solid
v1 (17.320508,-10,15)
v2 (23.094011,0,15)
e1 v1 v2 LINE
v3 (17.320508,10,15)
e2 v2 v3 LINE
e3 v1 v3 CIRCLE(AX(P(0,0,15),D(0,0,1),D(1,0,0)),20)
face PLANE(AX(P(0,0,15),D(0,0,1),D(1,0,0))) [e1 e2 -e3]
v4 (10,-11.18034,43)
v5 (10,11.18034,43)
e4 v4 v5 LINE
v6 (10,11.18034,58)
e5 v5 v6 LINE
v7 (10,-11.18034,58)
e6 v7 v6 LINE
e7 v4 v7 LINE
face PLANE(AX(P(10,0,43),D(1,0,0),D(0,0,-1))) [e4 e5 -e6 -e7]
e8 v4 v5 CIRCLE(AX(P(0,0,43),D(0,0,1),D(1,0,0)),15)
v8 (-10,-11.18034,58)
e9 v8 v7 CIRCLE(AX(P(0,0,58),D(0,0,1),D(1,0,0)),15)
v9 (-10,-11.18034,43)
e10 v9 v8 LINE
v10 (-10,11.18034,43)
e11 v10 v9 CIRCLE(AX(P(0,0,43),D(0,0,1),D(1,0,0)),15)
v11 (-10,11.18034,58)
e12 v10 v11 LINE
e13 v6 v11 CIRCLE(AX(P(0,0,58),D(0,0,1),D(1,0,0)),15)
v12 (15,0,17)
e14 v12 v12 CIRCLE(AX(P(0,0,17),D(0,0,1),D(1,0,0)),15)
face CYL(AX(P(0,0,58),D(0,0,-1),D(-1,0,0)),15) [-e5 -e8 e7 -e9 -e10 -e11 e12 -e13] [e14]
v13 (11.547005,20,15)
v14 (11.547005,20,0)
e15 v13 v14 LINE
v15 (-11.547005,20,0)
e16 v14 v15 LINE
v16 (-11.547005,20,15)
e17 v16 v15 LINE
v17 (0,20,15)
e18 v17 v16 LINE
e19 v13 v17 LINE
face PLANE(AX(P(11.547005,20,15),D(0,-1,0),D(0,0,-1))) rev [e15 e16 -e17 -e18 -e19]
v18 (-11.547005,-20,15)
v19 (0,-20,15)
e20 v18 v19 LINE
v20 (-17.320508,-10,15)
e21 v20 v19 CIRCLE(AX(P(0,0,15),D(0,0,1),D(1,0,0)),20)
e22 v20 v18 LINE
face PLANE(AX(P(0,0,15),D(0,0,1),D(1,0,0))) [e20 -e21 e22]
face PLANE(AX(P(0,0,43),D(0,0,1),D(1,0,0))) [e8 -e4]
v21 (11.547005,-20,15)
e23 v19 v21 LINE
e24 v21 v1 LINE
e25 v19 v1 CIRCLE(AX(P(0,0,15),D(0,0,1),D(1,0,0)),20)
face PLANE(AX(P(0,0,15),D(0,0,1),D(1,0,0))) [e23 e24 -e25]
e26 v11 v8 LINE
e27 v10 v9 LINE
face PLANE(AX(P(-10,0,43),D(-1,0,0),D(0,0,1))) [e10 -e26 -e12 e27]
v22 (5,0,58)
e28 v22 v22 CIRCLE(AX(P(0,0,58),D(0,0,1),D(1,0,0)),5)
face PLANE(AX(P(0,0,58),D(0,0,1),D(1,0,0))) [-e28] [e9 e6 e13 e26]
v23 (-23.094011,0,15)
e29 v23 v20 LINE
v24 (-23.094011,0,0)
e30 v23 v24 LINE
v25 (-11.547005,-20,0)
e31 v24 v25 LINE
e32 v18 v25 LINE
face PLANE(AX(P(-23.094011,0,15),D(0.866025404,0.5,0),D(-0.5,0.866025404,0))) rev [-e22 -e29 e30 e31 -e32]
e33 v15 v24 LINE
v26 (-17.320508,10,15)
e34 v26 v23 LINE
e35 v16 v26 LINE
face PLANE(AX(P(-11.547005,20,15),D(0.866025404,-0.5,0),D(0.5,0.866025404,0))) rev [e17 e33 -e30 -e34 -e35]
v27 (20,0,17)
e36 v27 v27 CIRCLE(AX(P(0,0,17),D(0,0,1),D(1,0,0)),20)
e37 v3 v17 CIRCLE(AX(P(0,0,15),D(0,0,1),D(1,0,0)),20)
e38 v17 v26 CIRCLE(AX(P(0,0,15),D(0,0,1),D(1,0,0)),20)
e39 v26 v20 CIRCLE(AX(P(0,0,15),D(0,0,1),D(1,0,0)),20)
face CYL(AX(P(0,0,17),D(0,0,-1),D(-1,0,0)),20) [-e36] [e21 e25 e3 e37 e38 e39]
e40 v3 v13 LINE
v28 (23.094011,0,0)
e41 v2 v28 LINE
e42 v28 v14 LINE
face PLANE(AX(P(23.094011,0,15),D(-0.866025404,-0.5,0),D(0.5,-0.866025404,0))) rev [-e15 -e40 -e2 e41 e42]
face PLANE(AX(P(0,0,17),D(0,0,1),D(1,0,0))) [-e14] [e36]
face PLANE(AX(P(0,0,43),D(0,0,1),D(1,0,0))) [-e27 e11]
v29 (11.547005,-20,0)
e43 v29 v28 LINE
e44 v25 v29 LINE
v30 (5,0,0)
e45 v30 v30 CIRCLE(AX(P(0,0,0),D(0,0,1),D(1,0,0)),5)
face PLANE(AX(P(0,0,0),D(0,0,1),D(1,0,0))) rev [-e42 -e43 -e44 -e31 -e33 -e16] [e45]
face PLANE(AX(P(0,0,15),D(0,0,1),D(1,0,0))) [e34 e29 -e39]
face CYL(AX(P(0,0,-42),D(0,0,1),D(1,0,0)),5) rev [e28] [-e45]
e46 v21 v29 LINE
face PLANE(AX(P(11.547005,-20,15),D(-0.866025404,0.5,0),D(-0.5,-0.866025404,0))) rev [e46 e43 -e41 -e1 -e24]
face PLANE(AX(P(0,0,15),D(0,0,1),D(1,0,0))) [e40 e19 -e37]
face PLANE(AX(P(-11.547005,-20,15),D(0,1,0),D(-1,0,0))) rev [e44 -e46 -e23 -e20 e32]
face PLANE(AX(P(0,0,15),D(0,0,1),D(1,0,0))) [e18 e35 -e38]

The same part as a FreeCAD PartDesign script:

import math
import FreeCAD as App
import Part
import Sketcher

V = App.Vector
Q = App.Units.Quantity


def add_polygon(sketch, points):
    """Adds a closed chain of lines whose ends are joined by coincident constraints."""
    first, n = sketch.GeometryCount, len(points)
    for a, b in zip(points, points[1:] + points[:1]):
        sketch.addGeometry(Part.LineSegment(App.Vector(*a, 0), App.Vector(*b, 0)), False)
    for i in range(n):
        sketch.addConstraint(Sketcher.Constraint("Coincident", first + i, 2, first + (i + 1) % n, 1))

doc = App.newDocument("Part")
body = doc.addObject("PartDesign::Body", "Body")

sketch1 = body.newObject("Sketcher::SketchObject", "Sketch")
sketch1.AttachmentSupport = (doc.getObject("XY_Plane"), [""])
sketch1.MapMode = "FlatFace"
add_polygon(sketch1, [(23.094011, 0), (11.547005, 20), (-11.547005, 20), (-23.094011, 0), (-11.547005, -20), (11.547005, -20)])
sketch1.addConstraint(Sketcher.Constraint("Horizontal", 1))
sketch1.addConstraint(Sketcher.Constraint("Horizontal", 4))
sketch1.addConstraint(Sketcher.Constraint("Symmetric", 0, 2, 3, 2, -1, 1))
sketch1.addConstraint(Sketcher.Constraint("Symmetric", 2, 2, 5, 2, -1, 1))
sketch1.addConstraint(Sketcher.Constraint("PointOnObject", 2, 2, -1))
sketch1.addConstraint(Sketcher.Constraint("Parallel", 2, 5))
sketch1.addConstraint(Sketcher.Constraint("Vertical", 1, 2, 3, 2))
sketch1.addConstraint(Sketcher.Constraint("Angle", 0, Q("120 deg")))
sketch1.addConstraint(Sketcher.Constraint("DistanceY", -1, 1, 0, 2, 20.0))
sketch1.addConstraint(Sketcher.Constraint("DistanceX", 1, 2, 1, 1, 23.094011))
pad1 = body.newObject("PartDesign::Pad", "Pad")
pad1.Profile = sketch1
pad1.Length = 15

sketch2 = body.newObject("Sketcher::SketchObject", "Sketch001")
sketch2.AttachmentSupport = (doc.getObject("XY_Plane"), [""])
sketch2.MapMode = "FlatFace"
sketch2.AttachmentOffset = App.Placement(V(0, 0, 15), App.Rotation())
sketch2.addGeometry(Part.Circle(V(0, 0, 0), V(0, 0, 1), 20), False)
sketch2.addConstraint(Sketcher.Constraint("Coincident", 0, 3, -1, 1))
sketch2.addConstraint(Sketcher.Constraint("Diameter", 0, 40.0))
pad2 = body.newObject("PartDesign::Pad", "Pad001")
pad2.Profile = sketch2
pad2.Length = 2

sketch3 = body.newObject("Sketcher::SketchObject", "Sketch002")
sketch3.AttachmentSupport = (doc.getObject("XY_Plane"), [""])
sketch3.MapMode = "FlatFace"
sketch3.AttachmentOffset = App.Placement(V(0, 0, 17), App.Rotation())
sketch3.addGeometry(Part.Circle(V(0, 0, 0), V(0, 0, 1), 15), False)
sketch3.addConstraint(Sketcher.Constraint("Coincident", 0, 3, -1, 1))
sketch3.addConstraint(Sketcher.Constraint("Diameter", 0, 30.0))
pad3 = body.newObject("PartDesign::Pad", "Pad002")
pad3.Profile = sketch3
pad3.Length = 41

sketch4 = body.newObject("Sketcher::SketchObject", "Sketch003")
sketch4.AttachmentSupport = (doc.getObject("XY_Plane"), [""])
sketch4.MapMode = "FlatFace"
sketch4.AttachmentOffset = App.Placement(V(0, 0, 58), App.Rotation())
sketch4.addGeometry(Part.Circle(V(0, 0, 0), V(0, 0, 1), 5), False)
sketch4.addConstraint(Sketcher.Constraint("Coincident", 0, 3, -1, 1))
sketch4.addConstraint(Sketcher.Constraint("Diameter", 0, 10.0))
pocket1 = body.newObject("PartDesign::Pocket", "Pocket")
pocket1.Profile = sketch4
pocket1.Length = 100

sketch5 = body.newObject("Sketcher::SketchObject", "Sketch004")
sketch5.AttachmentSupport = (doc.getObject("XY_Plane"), [""])
sketch5.MapMode = "FlatFace"
sketch5.AttachmentOffset = App.Placement(V(0, 0, 43), App.Rotation())
sketch5.addGeometry(Part.LineSegment(V(-10, -11.18034, 0), V(-10, 11.18034, 0)), False)
sketch5.addGeometry(Part.ArcOfCircle(Part.Circle(V(0, 0, 0), V(0, 0, 1), 15), math.radians(131.810315), math.radians(228.189685)), False)
sketch5.addGeometry(Part.LineSegment(V(10, 11.18034, 0), V(10, -11.18034, 0)), False)
sketch5.addGeometry(Part.ArcOfCircle(Part.Circle(V(0, 0, 0), V(0, 0, 1), 15), math.radians(-48.189685), math.radians(0)), False)
sketch5.addGeometry(Part.ArcOfCircle(Part.Circle(V(0, 0, 0), V(0, 0, 1), 15), math.radians(0), math.radians(48.189685)), False)
sketch5.addConstraint(Sketcher.Constraint("Coincident", 0, 1, 1, 2))
sketch5.addConstraint(Sketcher.Constraint("Coincident", 1, 1, 0, 2))
sketch5.addConstraint(Sketcher.Constraint("Coincident", 2, 2, 3, 1))
sketch5.addConstraint(Sketcher.Constraint("Tangent", 3, 2, 4, 1))
sketch5.addConstraint(Sketcher.Constraint("Coincident", 4, 2, 2, 1))
sketch5.addConstraint(Sketcher.Constraint("Vertical", 0))
sketch5.addConstraint(Sketcher.Constraint("Vertical", 2))
sketch5.addConstraint(Sketcher.Constraint("Coincident", 1, 3, -1, 1))
sketch5.addConstraint(Sketcher.Constraint("Coincident", 3, 3, -1, 1))
sketch5.addConstraint(Sketcher.Constraint("Equal", 1, 3))
sketch5.addConstraint(Sketcher.Constraint("Equal", 3, 4))
sketch5.addConstraint(Sketcher.Constraint("PointOnObject", 3, 2, -1))
sketch5.addConstraint(Sketcher.Constraint("Horizontal", 0, 1, 2, 2))
sketch5.addConstraint(Sketcher.Constraint("Radius", 1, 15.0))
sketch5.addConstraint(Sketcher.Constraint("DistanceX", 0, 1, -1, 1, 10.0))
pocket2 = body.newObject("PartDesign::Pocket", "Pocket001")
pocket2.Profile = sketch5
pocket2.Length = 15
pocket2.Reversed = True

doc.recompute()
